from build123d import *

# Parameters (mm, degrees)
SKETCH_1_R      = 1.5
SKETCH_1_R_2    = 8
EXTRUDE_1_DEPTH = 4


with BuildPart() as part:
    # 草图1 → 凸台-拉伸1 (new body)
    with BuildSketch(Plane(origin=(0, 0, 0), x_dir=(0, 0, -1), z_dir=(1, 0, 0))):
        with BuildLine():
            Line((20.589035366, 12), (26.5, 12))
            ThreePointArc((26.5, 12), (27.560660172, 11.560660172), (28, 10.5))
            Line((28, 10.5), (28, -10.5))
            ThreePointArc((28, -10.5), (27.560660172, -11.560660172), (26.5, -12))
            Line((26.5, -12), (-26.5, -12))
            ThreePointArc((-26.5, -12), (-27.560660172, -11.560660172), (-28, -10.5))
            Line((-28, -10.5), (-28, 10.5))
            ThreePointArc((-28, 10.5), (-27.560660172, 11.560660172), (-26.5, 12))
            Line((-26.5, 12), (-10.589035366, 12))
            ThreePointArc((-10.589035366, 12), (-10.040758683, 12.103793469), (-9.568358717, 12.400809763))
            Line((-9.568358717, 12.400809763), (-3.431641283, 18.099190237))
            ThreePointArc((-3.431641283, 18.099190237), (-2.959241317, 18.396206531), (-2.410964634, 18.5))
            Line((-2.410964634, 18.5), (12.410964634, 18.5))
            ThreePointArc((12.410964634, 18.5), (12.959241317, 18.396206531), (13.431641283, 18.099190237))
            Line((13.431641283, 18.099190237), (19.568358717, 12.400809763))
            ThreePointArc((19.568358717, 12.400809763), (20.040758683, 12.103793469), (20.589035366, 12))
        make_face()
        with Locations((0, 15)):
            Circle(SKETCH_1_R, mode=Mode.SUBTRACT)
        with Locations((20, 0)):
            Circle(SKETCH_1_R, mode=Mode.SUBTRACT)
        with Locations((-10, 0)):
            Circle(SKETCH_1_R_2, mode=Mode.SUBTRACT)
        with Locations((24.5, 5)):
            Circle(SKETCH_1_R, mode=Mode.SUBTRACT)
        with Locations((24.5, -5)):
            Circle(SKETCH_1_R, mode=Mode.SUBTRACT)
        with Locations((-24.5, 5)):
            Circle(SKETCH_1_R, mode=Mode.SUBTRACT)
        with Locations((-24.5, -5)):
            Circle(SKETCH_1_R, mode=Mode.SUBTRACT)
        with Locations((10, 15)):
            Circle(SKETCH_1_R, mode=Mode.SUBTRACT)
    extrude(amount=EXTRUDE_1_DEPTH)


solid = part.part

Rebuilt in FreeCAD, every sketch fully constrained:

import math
import FreeCAD as App
import Part
import Sketcher

V = App.Vector
Q = App.Units.Quantity

doc = App.newDocument("Part")
body = doc.addObject("PartDesign::Body", "Body")

# Sketch on YZ plane
sketch1 = body.newObject("Sketcher::SketchObject", "Sketch")
sketch1.AttachmentSupport = (doc.getObject("YZ_Plane"), [""])
sketch1.MapMode = "FlatFace"
sketch1.addGeometry(Part.LineSegment(V(12, -26.5, 0), V(12, -20.6, 0)), False)
sketch1.addGeometry(Part.ArcOfCircle(Part.Circle(V(13.5, -20.6, 0), V(0, 0, 1), 1.5), math.radians(137), math.radians(180)), False)
sketch1.addGeometry(Part.LineSegment(V(12.4, -19.6, 0), V(18.1, -13.4, 0)), False)
sketch1.addGeometry(Part.ArcOfCircle(Part.Circle(V(17, -12.4, 0), V(0, 0, 1), 1.5), math.radians(-43), math.radians(0)), False)
sketch1.addGeometry(Part.LineSegment(V(18.5, -12.4, 0), V(18.5, 2.4, 0)), False)
sketch1.addGeometry(Part.ArcOfCircle(Part.Circle(V(17, 2.4, 0), V(0, 0, 1), 1.5), math.radians(0), math.radians(43)), False)
sketch1.addGeometry(Part.LineSegment(V(18.1, 3.4, 0), V(12.4, 9.6, 0)), False)
sketch1.addGeometry(Part.ArcOfCircle(Part.Circle(V(13.5, 10.6, 0), V(0, 0, 1), 1.5), math.radians(-180), math.radians(-137)), False)
sketch1.addGeometry(Part.LineSegment(V(12, 10.6, 0), V(12, 26.5, 0)), False)
sketch1.addGeometry(Part.ArcOfCircle(Part.Circle(V(10.5, 26.5, 0), V(0, 0, 1), 1.5), math.radians(0), math.radians(90)), False)
sketch1.addGeometry(Part.LineSegment(V(10.5, 28, 0), V(-10.5, 28, 0)), False)
sketch1.addGeometry(Part.ArcOfCircle(Part.Circle(V(-10.5, 26.5, 0), V(0, 0, 1), 1.5), math.radians(90), math.radians(180)), False)
sketch1.addGeometry(Part.LineSegment(V(-12, 26.5, 0), V(-12, -26.5, 0)), False)
sketch1.addGeometry(Part.ArcOfCircle(Part.Circle(V(-10.5, -26.5, 0), V(0, 0, 1), 1.5), math.radians(180), math.radians(270)), False)
sketch1.addGeometry(Part.LineSegment(V(-10.5, -28, 0), V(10.5, -28, 0)), False)
sketch1.addGeometry(Part.ArcOfCircle(Part.Circle(V(10.5, -26.5, 0), V(0, 0, 1), 1.5), math.radians(-90), math.radians(0)), False)
sketch1.addGeometry(Part.Circle(V(-5, -24.5, 0), V(0, 0, 1), 1.5), False)
sketch1.addGeometry(Part.Circle(V(0, -20, 0), V(0, 0, 1), 1.5), False)
sketch1.addGeometry(Part.Circle(V(-5, 24.5, 0), V(0, 0, 1), 1.5), False)
sketch1.addGeometry(Part.Circle(V(0, 10, 0), V(0, 0, 1), 8), False)
sketch1.addGeometry(Part.Circle(V(5, -24.5, 0), V(0, 0, 1), 1.5), False)
sketch1.addGeometry(Part.Circle(V(15, -10, 0), V(0, 0, 1), 1.5), False)
sketch1.addGeometry(Part.Circle(V(5, 24.5, 0), V(0, 0, 1), 1.5), False)
sketch1.addGeometry(Part.Circle(V(15, 0, 0), V(0, 0, 1), 1.5), False)
sketch1.addConstraint(Sketcher.Constraint("Tangent", 0, 2, 1, 2))
sketch1.addConstraint(Sketcher.Constraint("Tangent", 1, 1, 2, 1))
sketch1.addConstraint(Sketcher.Constraint("Tangent", 2, 2, 3, 1))
sketch1.addConstraint(Sketcher.Constraint("Tangent", 3, 2, 4, 1))
sketch1.addConstraint(Sketcher.Constraint("Tangent", 4, 2, 5, 1))
sketch1.addConstraint(Sketcher.Constraint("Tangent", 5, 2, 6, 1))
sketch1.addConstraint(Sketcher.Constraint("Tangent", 6, 2, 7, 2))
sketch1.addConstraint(Sketcher.Constraint("Tangent", 7, 1, 8, 1))
sketch1.addConstraint(Sketcher.Constraint("Tangent", 8, 2, 9, 1))
sketch1.addConstraint(Sketcher.Constraint("Tangent", 9, 2, 10, 1))
sketch1.addConstraint(Sketcher.Constraint("Tangent", 10, 2, 11, 1))
sketch1.addConstraint(Sketcher.Constraint("Tangent", 11, 2, 12, 1))
sketch1.addConstraint(Sketcher.Constraint("Tangent", 12, 2, 13, 1))
sketch1.addConstraint(Sketcher.Constraint("Tangent", 13, 2, 14, 1))
sketch1.addConstraint(Sketcher.Constraint("Tangent", 14, 2, 15, 1))
sketch1.addConstraint(Sketcher.Constraint("Tangent", 15, 2, 0, 1))
sketch1.addConstraint(Sketcher.Constraint("Vertical", 0))
sketch1.addConstraint(Sketcher.Constraint("Vertical", 4))
sketch1.addConstraint(Sketcher.Constraint("Vertical", 8))
sketch1.addConstraint(Sketcher.Constraint("Horizontal", 10))
sketch1.addConstraint(Sketcher.Constraint("Vertical", 12))
sketch1.addConstraint(Sketcher.Constraint("Horizontal", 14))
sketch1.addConstraint(Sketcher.Constraint("Equal", 1, 3))
sketch1.addConstraint(Sketcher.Constraint("Equal", 3, 5))
sketch1.addConstraint(Sketcher.Constraint("Equal", 5, 7))
sketch1.addConstraint(Sketcher.Constraint("Equal", 7, 9))
sketch1.addConstraint(Sketcher.Constraint("Equal", 9, 11))
sketch1.addConstraint(Sketcher.Constraint("Equal", 11, 13))
sketch1.addConstraint(Sketcher.Constraint("Equal", 13, 15))
sketch1.addConstraint(Sketcher.Constraint("Equal", 15, 16))
sketch1.addConstraint(Sketcher.Constraint("Equal", 16, 17))
sketch1.addConstraint(Sketcher.Constraint("Equal", 17, 18))
sketch1.addConstraint(Sketcher.Constraint("Equal", 18, 20))
sketch1.addConstraint(Sketcher.Constraint("Equal", 20, 21))
sketch1.addConstraint(Sketcher.Constraint("Equal", 21, 22))
sketch1.addConstraint(Sketcher.Constraint("Equal", 22, 23))
sketch1.addConstraint(Sketcher.Constraint("Symmetric", 9, 3, 13, 3, -1, 1))
sketch1.addConstraint(Sketcher.Constraint("Symmetric", 18, 3, 20, 3, -1, 1))
sketch1.addConstraint(Sketcher.Constraint("Symmetric", 16, 3, 22, 3, -1, 1))
sketch1.addConstraint(Sketcher.Constraint("Symmetric", 16, 3, 20, 3, -2))
sketch1.addConstraint(Sketcher.Constraint("PointOnObject", 17, 3, -2))
sketch1.addConstraint(Sketcher.Constraint("PointOnObject", 19, 3, -2))
sketch1.addConstraint(Sketcher.Constraint("PointOnObject", 23, 3, -1))
sketch1.addConstraint(Sketcher.Constraint("Vertical", 1, 3, 7, 3))
sketch1.addConstraint(Sketcher.Constraint("Vertical", 21, 3, 23, 3))
sketch1.addConstraint(Sketcher.Constraint("Vertical", 2, 2, 5, 2))
sketch1.addConstraint(Sketcher.Constraint("Diameter", 16, Q("3 mm")))
sketch1.addConstraint(Sketcher.Constraint("Diameter", 19, Q("16 mm")))
sketch1.addConstraint(Sketcher.Constraint("DistanceX", 10, 2, 10, 1, Q("21 mm")))
sketch1.addConstraint(Sketcher.Constraint("DistanceY", 12, 2, 12, 1, Q("53 mm")))
sketch1.addConstraint(Sketcher.Constraint("DistanceX", -1, 1, 3, 3, Q("17 mm")))
sketch1.addConstraint(Sketcher.Constraint("DistanceX", 16, 3, -1, 1, Q("5 mm")))
sketch1.addConstraint(Sketcher.Constraint("DistanceY", 17, 3, -1, 1, Q("20 mm")))
sketch1.addConstraint(Sketcher.Constraint("DistanceY", -1, 1, 19, 3, Q("10 mm")))
sketch1.addConstraint(Sketcher.Constraint("DistanceX", -1, 1, 21, 3, Q("15 mm")))
sketch1.addConstraint(Sketcher.Constraint("DistanceY", 21, 3, -1, 1, Q("10 mm")))
sketch1.addConstraint(Sketcher.Constraint("DistanceY", 1, 3, 5, 3, Q("23 mm")))
sketch1.addConstraint(Sketcher.Constraint("DistanceY", 13, 3, 16, 3, Q("2 mm")))
sketch1.addConstraint(Sketcher.Constraint("DistanceY", 4, 1, 4, 2, Q("14.821929 mm")))
sketch1.addConstraint(Sketcher.Constraint("DistanceY", 0, 1, 0, 2, Q("5.910965 mm")))
pad1 = body.newObject("PartDesign::Pad", "Pad")
pad1.Profile = sketch1
pad1.Length = 4

doc.recompute()
